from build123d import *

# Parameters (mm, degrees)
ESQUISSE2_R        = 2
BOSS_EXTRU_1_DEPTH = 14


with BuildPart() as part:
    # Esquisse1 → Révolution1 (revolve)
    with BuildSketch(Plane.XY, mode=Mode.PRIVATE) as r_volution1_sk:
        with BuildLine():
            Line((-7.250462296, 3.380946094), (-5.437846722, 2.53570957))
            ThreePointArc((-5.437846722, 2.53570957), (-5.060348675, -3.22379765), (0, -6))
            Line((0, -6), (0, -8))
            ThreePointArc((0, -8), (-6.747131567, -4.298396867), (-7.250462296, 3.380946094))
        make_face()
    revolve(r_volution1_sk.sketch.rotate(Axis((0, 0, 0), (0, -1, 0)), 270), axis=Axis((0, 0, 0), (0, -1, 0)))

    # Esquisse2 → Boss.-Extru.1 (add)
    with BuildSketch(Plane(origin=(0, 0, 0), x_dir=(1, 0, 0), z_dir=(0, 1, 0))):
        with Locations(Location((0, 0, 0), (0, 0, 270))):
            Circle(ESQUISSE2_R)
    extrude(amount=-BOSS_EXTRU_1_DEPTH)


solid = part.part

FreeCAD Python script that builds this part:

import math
import FreeCAD as App
import Part
import Sketcher

V = App.Vector
Q = App.Units.Quantity

doc = App.newDocument("Part")
body = doc.addObject("PartDesign::Body", "Body")

sketch1 = doc.addObject("Sketcher::SketchObject", "Sketch")
body.addObject(sketch1)
sketch1.AttachmentSupport = (doc.XY_Plane, [""])
sketch1.MapMode = "FlatFace"
sketch1.addGeometry([
    Part.LineSegment(V(-5.4, 2.5, 0), V(-7.3, 3.4, 0)),
    Part.ArcOfCircle(Part.Circle(V(0, 0, 0), V(0, 0, 1), 8), math.radians(155), math.radians(270)),
    Part.LineSegment(V(0, -8, 0), V(0, -6, 0)),
    Part.ArcOfCircle(Part.Circle(V(0, 0, 0), V(0, 0, 1), 6), math.radians(155), math.radians(270)),
], False)
sketch1.addConstraint([
    Sketcher.Constraint("Coincident", 0, 2, 1, 1),
    Sketcher.Constraint("Coincident", 1, 2, 2, 1),
    Sketcher.Constraint("Coincident", 2, 2, 3, 2),
    Sketcher.Constraint("Coincident", 3, 1, 0, 1),
    Sketcher.Constraint("Vertical", 2),
    Sketcher.Constraint("Coincident", 1, 3, -1, 1),
    Sketcher.Constraint("Coincident", 3, 3, -1, 1),
    Sketcher.Constraint("PointOnObject", 1, 2, -2),
    Sketcher.Constraint("Radius", 1, 8.0),
    Sketcher.Constraint("Radius", 3, 6.0),
    Sketcher.Constraint("Angle", 0, Q("155 deg")),
    Sketcher.Constraint("DistanceY", -1, 1, 3, 1, 2.53571),
])
revolution = doc.addObject("PartDesign::Revolution", "Revolution")
body.addObject(revolution)
revolution.Profile = sketch1
revolution.ReferenceAxis = (sketch1, ["V_Axis"])
revolution.Angle = 360

sketch2 = doc.addObject("Sketcher::SketchObject", "Sketch001")
body.addObject(sketch2)
sketch2.AttachmentSupport = (doc.XZ_Plane, [""])
sketch2.MapMode = "FlatFace"
sketch2.addGeometry(Part.Circle(V(0, 0, 0), V(0, 0, 1), 2), False)
sketch2.addConstraint([
    Sketcher.Constraint("Coincident", 0, 3, -1, 1),
    Sketcher.Constraint("Diameter", 0, 4.0),
])
pad1 = doc.addObject("PartDesign::Pad", "Pad")
body.addObject(pad1)
pad1.Profile = sketch2
pad1.Length = 14

doc.recompute()
